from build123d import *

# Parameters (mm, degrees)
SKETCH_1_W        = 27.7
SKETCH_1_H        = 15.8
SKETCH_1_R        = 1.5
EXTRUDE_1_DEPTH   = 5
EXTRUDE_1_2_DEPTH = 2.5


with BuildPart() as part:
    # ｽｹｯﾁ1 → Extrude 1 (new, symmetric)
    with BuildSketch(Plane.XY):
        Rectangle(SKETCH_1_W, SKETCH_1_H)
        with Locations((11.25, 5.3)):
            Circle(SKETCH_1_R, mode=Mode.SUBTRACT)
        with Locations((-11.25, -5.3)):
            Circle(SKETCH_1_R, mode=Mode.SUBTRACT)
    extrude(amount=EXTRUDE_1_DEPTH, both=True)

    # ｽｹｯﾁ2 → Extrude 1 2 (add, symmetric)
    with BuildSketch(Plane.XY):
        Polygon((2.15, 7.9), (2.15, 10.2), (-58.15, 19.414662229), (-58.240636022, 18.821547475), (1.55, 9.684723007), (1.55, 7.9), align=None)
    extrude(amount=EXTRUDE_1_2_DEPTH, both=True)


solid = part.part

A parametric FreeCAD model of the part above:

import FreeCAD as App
import Part
import Sketcher
Q = App.Units.Quantity

doc = App.newDocument("Part")
body = doc.addObject("PartDesign::Body", "Body")

# Sketch on XY plane
sketch1 = body.newObject("Sketcher::SketchObject", "Sketch")
sketch1.AttachmentSupport = (doc.getObject("XY_Plane"), [""])
sketch1.MapMode = "FlatFace"
sketch1.addGeometry([
    Part.LineSegment(App.Vector(-13.8, 7.9, 0), App.Vector(-13.8, -7.9, 0)),  # 0
    Part.LineSegment(App.Vector(-13.8, -7.9, 0), App.Vector(13.8, -7.9, 0)),  # 1
    Part.LineSegment(App.Vector(13.8, -7.9, 0), App.Vector(13.8, 7.9, 0)),  # 2
    Part.LineSegment(App.Vector(13.8, 7.9, 0), App.Vector(-13.8, 7.9, 0)),  # 3
    Part.Circle(App.Vector(-11.2, -5.3, 0), App.Vector(0, 0, 1), 1.5),  # 4
    Part.Circle(App.Vector(11.2, 5.3, 0), App.Vector(0, 0, 1), 1.5),  # 5
], False)
sketch1.addConstraint([
    Sketcher.Constraint("Coincident", 0, 2, 1, 1),
    Sketcher.Constraint("Coincident", 1, 2, 2, 1),
    Sketcher.Constraint("Coincident", 2, 2, 3, 1),
    Sketcher.Constraint("Coincident", 3, 2, 0, 1),
    Sketcher.Constraint("Vertical", 0),
    Sketcher.Constraint("Horizontal", 1),
    Sketcher.Constraint("Vertical", 2),
    Sketcher.Constraint("Horizontal", 3),
    Sketcher.Constraint("Equal", 4, 5),
    Sketcher.Constraint("Symmetric", 4, 3, 5, 3, -1, 1),
    Sketcher.Constraint("Symmetric", 0, 2, 2, 2, -1, 1),
    Sketcher.Constraint("Diameter", 4, Q("3 mm")),
    Sketcher.Constraint("DistanceX", 1, 1, 1, 2, Q("27.7 mm")),
    Sketcher.Constraint("DistanceY", 0, 2, 0, 1, Q("15.8 mm")),
    Sketcher.Constraint("DistanceY", 4, 3, -1, 1, Q("5.3 mm")),
    Sketcher.Constraint("DistanceX", 4, 3, 5, 3, Q("22.5 mm")),
])
pad1 = body.newObject("PartDesign::Pad", "Pad")
pad1.Profile = sketch1
pad1.Length = 10
pad1.Midplane = True

# Sketch on XY plane
sketch2 = body.newObject("Sketcher::SketchObject", "Sketch001")
sketch2.AttachmentSupport = (doc.getObject("XY_Plane"), [""])
sketch2.MapMode = "FlatFace"
sketch2.addGeometry([
    Part.LineSegment(App.Vector(2.1, 7.9, 0), App.Vector(2.1, 10.2, 0)),  # 0
    Part.LineSegment(App.Vector(2.1, 10.2, 0), App.Vector(-58.1, 19.4, 0)),  # 1
    Part.LineSegment(App.Vector(-58.1, 19.4, 0), App.Vector(-58.2, 18.8, 0)),  # 2
    Part.LineSegment(App.Vector(-58.2, 18.8, 0), App.Vector(1.6, 9.7, 0)),  # 3
    Part.LineSegment(App.Vector(1.6, 9.7, 0), App.Vector(1.6, 7.9, 0)),  # 4
    Part.LineSegment(App.Vector(1.6, 7.9, 0), App.Vector(2.1, 7.9, 0)),  # 5
], False)
sketch2.addConstraint([
    Sketcher.Constraint("Coincident", 0, 2, 1, 1),
    Sketcher.Constraint("Coincident", 1, 2, 2, 1),
    Sketcher.Constraint("Coincident", 2, 2, 3, 1),
    Sketcher.Constraint("Coincident", 3, 2, 4, 1),
    Sketcher.Constraint("Coincident", 4, 2, 5, 1),
    Sketcher.Constraint("Coincident", 5, 2, 0, 1),
    Sketcher.Constraint("Vertical", 0),
    Sketcher.Constraint("Vertical", 4),
    Sketcher.Constraint("Horizontal", 5),
    Sketcher.Constraint("Perpendicular", 1, 2),
    Sketcher.Constraint("Perpendicular", 2, 3),
    Sketcher.Constraint("Distance", 1, Q("61 mm")),
    Sketcher.Constraint("DistanceX", 5, 1, 5, 2, Q("0.6 mm")),
    Sketcher.Constraint("DistanceY", 0, 1, 0, 2, Q("2.3 mm")),
    Sketcher.Constraint("Distance", 2, Q("0.6 mm")),
    Sketcher.Constraint("DistanceY", -1, 1, 0, 2, Q("10.2 mm")),
    Sketcher.Constraint("DistanceX", 1, 2, 0, 2, Q("60.3 mm")),
    Sketcher.Constraint("DistanceX", -1, 1, 0, 2, Q("2.15 mm")),
])
pad2 = body.newObject("PartDesign::Pad", "Pad001")
pad2.Profile = sketch2
pad2.Length = 5
pad2.Midplane = True

doc.recompute()
